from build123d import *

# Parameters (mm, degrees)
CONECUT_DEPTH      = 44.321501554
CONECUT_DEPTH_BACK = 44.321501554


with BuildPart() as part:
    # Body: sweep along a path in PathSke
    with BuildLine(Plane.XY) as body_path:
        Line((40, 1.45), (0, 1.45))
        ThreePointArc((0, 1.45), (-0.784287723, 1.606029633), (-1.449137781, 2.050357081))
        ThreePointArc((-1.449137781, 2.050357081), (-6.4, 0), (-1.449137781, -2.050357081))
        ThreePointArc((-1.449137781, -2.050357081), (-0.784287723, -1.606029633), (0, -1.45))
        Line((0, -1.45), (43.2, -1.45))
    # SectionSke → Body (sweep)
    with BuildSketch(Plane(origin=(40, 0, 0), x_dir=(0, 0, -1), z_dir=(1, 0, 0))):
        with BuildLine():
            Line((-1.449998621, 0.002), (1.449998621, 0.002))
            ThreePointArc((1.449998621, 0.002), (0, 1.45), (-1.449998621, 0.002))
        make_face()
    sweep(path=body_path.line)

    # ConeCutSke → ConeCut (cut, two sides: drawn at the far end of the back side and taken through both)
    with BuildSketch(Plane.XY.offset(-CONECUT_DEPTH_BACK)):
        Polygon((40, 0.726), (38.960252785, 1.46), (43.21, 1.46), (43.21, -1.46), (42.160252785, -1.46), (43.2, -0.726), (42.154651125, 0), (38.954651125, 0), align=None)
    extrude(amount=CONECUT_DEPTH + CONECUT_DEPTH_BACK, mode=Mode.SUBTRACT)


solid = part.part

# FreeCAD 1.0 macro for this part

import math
import FreeCAD as App
import Part
import Sketcher
from FreeCAD import Vector

doc = App.newDocument("Part")
body = doc.addObject("PartDesign::Body", "Body")

# Sketch on YZ plane
sketch1 = doc.addObject("Sketcher::SketchObject", "Sketch")
body.addObject(sketch1)
sketch1.AttachmentSupport = (doc.YZ_Plane, [""])
sketch1.MapMode = "FlatFace"
sketch1.AttachmentOffset = App.Placement(Vector(0, 0, 40), App.Rotation())
sketch1.addGeometry(Part.LineSegment(Vector(0, 1.4, 0), Vector(0, -1.4, 0)), False)
sketch1.addGeometry(Part.ArcOfCircle(Part.Circle(Vector(0, 0, 0), Vector(0, 0, 1), 1.4), math.radians(-90), math.radians(90)), False)
sketch1.addConstraint(Sketcher.Constraint("Coincident", 0, 1, 1, 2))
sketch1.addConstraint(Sketcher.Constraint("Coincident", 1, 1, 0, 2))
sketch1.addConstraint(Sketcher.Constraint("Vertical", 0))
sketch1.addConstraint(Sketcher.Constraint("Coincident", 1, 3, -1, 1))
sketch1.addConstraint(Sketcher.Constraint("Radius", 1, 1.45))
sketch1.addConstraint(Sketcher.Constraint("DistanceX", -1, 1, 0, 1, 0.002))

# Sketch on XY plane
sketch2 = doc.addObject("Sketcher::SketchObject", "Sketch001")
body.addObject(sketch2)
sketch2.AttachmentSupport = (doc.XY_Plane, [""])
sketch2.MapMode = "FlatFace"
sketch2.addGeometry(Part.LineSegment(Vector(40, 1.4, 0), Vector(0, 1.4, 0)), False)
sketch2.addGeometry(Part.ArcOfCircle(Part.Circle(Vector(0, 3.5, 0), Vector(0, 0, 1), 2), math.radians(-135), math.radians(-90)), False)
sketch2.addGeometry(Part.ArcOfCircle(Part.Circle(Vector(-3.5, 0, 0), Vector(0, 0, 1), 2.9), math.radians(45), math.radians(315)), False)
sketch2.addGeometry(Part.ArcOfCircle(Part.Circle(Vector(0, -3.5, 0), Vector(0, 0, 1), 2), math.radians(90), math.radians(135)), False)
sketch2.addGeometry(Part.LineSegment(Vector(0, -1.4, 0), Vector(43.2, -1.4, 0)), False)
sketch2.addConstraint(Sketcher.Constraint("Tangent", 0, 2, 1, 2))
sketch2.addConstraint(Sketcher.Constraint("Tangent", 1, 1, 2, 1))
sketch2.addConstraint(Sketcher.Constraint("Tangent", 2, 2, 3, 2))
sketch2.addConstraint(Sketcher.Constraint("Tangent", 3, 1, 4, 1))
sketch2.addConstraint(Sketcher.Constraint("Horizontal", 0))
sketch2.addConstraint(Sketcher.Constraint("Horizontal", 4))
sketch2.addConstraint(Sketcher.Constraint("Equal", 1, 3))
sketch2.addConstraint(Sketcher.Constraint("Symmetric", 1, 3, 3, 3, -1, 1))
sketch2.addConstraint(Sketcher.Constraint("PointOnObject", 1, 3, -2))
sketch2.addConstraint(Sketcher.Constraint("Radius", 2, 2.9))
sketch2.addConstraint(Sketcher.Constraint("DistanceX", 0, 2, 0, 1, 40.0))
sketch2.addConstraint(Sketcher.Constraint("DistanceX", 4, 1, 4, 2, 43.2))
sketch2.addConstraint(Sketcher.Constraint("DistanceX", 2, 3, -1, 1, 3.5))
sketch2.addConstraint(Sketcher.Constraint("DistanceY", 3, 1, 0, 2, 2.9))
doc.recompute()

additivepipe = doc.addObject("PartDesign::AdditivePipe", "AdditivePipe")
body.addObject(additivepipe)
additivepipe.Profile = sketch1
additivepipe.Spine = (sketch2, ["Edge1", "Edge2", "Edge3", "Edge4", "Edge5"])

# Sketch on XY plane
sketch3 = doc.addObject("Sketcher::SketchObject", "Sketch002")
body.addObject(sketch3)
sketch3.AttachmentSupport = (doc.XY_Plane, [""])
sketch3.MapMode = "FlatFace"
sketch3.addGeometry(Part.LineSegment(Vector(39, 1.5, 0), Vector(40, 0.7, 0)), False)
sketch3.addGeometry(Part.LineSegment(Vector(40, 0.7, 0), Vector(39, 0, 0)), False)
sketch3.addGeometry(Part.LineSegment(Vector(39, 0, 0), Vector(42.2, 0, 0)), False)
sketch3.addGeometry(Part.LineSegment(Vector(42.2, 0, 0), Vector(43.2, -0.7, 0)), False)
sketch3.addGeometry(Part.LineSegment(Vector(43.2, -0.7, 0), Vector(42.2, -1.5, 0)), False)
sketch3.addGeometry(Part.LineSegment(Vector(42.2, -1.5, 0), Vector(43.2, -1.5, 0)), False)
sketch3.addGeometry(Part.LineSegment(Vector(43.2, -1.5, 0), Vector(43.2, 1.5, 0)), False)
sketch3.addGeometry(Part.LineSegment(Vector(43.2, 1.5, 0), Vector(39, 1.5, 0)), False)
sketch3.addConstraint(Sketcher.Constraint("Coincident", 0, 2, 1, 1))
sketch3.addConstraint(Sketcher.Constraint("Coincident", 1, 2, 2, 1))
sketch3.addConstraint(Sketcher.Constraint("Coincident", 2, 2, 3, 1))
sketch3.addConstraint(Sketcher.Constraint("Coincident", 3, 2, 4, 1))
sketch3.addConstraint(Sketcher.Constraint("Coincident", 4, 2, 5, 1))
sketch3.addConstraint(Sketcher.Constraint("Coincident", 5, 2, 6, 1))
sketch3.addConstraint(Sketcher.Constraint("Coincident", 6, 2, 7, 1))
sketch3.addConstraint(Sketcher.Constraint("Coincident", 7, 2, 0, 1))
sketch3.addConstraint(Sketcher.Constraint("Horizontal", 2))
sketch3.addConstraint(Sketcher.Constraint("Horizontal", 5))
sketch3.addConstraint(Sketcher.Constraint("Vertical", 6))
sketch3.addConstraint(Sketcher.Constraint("Horizontal", 7))
sketch3.addConstraint(Sketcher.Constraint("PointOnObject", 1, 2, -1))
sketch3.addConstraint(Sketcher.Constraint("Equal", 0, 1))
sketch3.addConstraint(Sketcher.Constraint("Equal", 1, 3))
sketch3.addConstraint(Sketcher.Constraint("Equal", 3, 4))
sketch3.addConstraint(Sketcher.Constraint("DistanceX", 2, 1, 2, 2, 3.2))
sketch3.addConstraint(Sketcher.Constraint("DistanceX", -1, 1, 0, 2, 40.0))
sketch3.addConstraint(Sketcher.Constraint("DistanceY", 6, 1, 6, 2, 2.92))
sketch3.addConstraint(Sketcher.Constraint("DistanceX", -1, 1, 3, 2, 43.2))
sketch3.addConstraint(Sketcher.Constraint("DistanceX", 7, 2, 4, 2, 3.2))
sketch3.addConstraint(Sketcher.Constraint("DistanceX", -1, 1, 5, 2, 43.21))
sketch3.addConstraint(Sketcher.Constraint("DistanceY", -1, 1, 0, 2, 0.726))
sketch3.addConstraint(Sketcher.Constraint("DistanceX", 5, 1, 5, 2, 1.049747))
pocket1 = doc.addObject("PartDesign::Pocket", "Pocket")
body.addObject(pocket1)
pocket1.Profile = sketch3
pocket1.Type = "ThroughAll"
pocket1.Midplane = True

doc.recompute()
